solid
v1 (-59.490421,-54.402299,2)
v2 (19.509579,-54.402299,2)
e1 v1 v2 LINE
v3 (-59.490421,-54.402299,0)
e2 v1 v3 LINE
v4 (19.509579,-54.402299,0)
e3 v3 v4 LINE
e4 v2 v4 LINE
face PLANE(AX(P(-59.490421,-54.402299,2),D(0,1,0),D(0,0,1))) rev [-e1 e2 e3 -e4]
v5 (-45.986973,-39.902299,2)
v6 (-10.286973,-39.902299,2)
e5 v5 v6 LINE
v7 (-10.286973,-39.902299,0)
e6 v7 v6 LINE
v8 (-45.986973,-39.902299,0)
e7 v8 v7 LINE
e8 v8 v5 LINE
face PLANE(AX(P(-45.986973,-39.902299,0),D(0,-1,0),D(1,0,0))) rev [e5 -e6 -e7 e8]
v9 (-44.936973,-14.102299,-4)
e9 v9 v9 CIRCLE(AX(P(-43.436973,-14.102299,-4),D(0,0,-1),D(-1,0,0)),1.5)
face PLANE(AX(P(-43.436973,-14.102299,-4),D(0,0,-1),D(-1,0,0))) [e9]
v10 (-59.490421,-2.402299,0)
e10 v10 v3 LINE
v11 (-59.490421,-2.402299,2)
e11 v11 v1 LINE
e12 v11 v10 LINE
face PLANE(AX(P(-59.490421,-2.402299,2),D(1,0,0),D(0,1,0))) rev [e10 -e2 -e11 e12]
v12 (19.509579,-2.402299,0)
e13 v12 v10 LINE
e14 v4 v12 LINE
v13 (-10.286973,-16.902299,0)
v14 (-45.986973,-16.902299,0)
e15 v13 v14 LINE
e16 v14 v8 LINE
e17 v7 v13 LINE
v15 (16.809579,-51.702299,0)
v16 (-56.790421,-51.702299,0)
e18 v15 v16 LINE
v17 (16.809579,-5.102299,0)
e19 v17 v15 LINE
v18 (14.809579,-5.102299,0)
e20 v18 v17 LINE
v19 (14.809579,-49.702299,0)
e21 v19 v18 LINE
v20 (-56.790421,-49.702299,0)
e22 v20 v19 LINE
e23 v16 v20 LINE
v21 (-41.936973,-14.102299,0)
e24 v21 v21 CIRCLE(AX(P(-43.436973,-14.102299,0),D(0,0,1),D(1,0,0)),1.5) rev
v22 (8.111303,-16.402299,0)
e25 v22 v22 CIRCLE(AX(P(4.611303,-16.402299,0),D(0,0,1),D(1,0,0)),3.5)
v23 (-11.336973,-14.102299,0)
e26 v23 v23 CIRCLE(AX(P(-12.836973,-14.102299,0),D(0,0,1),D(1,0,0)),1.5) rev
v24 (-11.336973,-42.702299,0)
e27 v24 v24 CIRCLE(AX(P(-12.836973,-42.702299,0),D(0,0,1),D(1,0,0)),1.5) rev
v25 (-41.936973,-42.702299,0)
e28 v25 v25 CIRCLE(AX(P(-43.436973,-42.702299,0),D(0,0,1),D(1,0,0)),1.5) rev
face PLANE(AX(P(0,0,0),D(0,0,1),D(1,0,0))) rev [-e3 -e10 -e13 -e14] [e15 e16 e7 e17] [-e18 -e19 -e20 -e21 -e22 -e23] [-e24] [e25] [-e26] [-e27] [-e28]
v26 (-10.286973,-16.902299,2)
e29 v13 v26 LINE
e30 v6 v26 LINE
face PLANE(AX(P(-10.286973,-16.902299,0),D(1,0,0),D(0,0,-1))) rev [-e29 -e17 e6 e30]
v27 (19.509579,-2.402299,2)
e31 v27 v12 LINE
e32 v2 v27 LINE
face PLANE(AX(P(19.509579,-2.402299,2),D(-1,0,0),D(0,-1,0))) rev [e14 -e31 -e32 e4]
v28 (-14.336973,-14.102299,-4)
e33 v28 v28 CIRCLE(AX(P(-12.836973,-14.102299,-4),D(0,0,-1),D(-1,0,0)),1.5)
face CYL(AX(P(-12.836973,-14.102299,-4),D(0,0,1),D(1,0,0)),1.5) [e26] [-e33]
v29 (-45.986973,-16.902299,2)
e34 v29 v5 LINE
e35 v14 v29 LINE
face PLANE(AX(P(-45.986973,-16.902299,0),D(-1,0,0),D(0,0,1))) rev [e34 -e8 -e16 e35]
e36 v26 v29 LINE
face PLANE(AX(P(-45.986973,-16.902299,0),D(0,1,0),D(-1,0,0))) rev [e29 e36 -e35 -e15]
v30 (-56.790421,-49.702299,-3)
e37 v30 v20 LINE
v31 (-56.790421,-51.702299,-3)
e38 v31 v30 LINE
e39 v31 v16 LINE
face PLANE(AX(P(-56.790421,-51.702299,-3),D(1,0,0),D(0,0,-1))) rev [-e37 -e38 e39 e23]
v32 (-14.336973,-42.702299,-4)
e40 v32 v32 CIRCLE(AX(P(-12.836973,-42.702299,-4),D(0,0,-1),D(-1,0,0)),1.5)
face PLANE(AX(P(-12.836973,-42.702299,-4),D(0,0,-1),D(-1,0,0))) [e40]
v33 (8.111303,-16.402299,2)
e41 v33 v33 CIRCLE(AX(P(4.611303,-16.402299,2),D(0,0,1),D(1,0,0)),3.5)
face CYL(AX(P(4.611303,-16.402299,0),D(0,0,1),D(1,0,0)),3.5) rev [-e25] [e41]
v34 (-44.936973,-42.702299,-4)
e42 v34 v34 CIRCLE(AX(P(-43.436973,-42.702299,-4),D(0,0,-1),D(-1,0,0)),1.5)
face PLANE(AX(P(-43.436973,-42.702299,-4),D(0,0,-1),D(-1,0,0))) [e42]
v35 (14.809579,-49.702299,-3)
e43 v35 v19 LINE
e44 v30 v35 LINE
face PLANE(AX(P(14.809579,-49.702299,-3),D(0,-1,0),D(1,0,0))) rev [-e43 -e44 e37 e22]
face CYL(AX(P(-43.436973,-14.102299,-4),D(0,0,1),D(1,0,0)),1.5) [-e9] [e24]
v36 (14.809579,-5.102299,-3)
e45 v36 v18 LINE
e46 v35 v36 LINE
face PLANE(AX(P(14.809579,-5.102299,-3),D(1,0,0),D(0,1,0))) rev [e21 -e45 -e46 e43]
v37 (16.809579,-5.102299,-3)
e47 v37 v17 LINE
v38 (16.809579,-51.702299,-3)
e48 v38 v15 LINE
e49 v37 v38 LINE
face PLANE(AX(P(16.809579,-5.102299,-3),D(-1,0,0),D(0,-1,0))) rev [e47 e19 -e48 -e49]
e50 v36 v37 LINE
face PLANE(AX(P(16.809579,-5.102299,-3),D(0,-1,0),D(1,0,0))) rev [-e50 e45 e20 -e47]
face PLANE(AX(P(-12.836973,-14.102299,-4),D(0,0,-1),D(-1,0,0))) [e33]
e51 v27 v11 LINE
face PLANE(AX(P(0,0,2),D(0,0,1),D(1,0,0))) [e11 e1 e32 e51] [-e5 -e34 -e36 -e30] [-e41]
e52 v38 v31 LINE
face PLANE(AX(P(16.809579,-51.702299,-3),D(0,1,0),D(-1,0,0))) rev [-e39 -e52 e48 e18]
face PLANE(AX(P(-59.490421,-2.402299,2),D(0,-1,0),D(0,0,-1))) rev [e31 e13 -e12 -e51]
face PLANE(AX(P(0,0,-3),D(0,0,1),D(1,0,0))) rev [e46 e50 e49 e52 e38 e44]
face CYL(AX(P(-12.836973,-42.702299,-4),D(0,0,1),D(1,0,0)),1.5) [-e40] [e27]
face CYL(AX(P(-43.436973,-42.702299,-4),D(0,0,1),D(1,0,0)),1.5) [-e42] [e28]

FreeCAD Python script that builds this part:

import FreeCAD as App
import Part
import Sketcher
from FreeCAD import Vector
Q = App.Units.Quantity


def add_polygon(sketch, points):
    """Adds a closed chain of lines whose ends are joined by coincident constraints."""
    first, n = sketch.GeometryCount, len(points)
    for a, b in zip(points, points[1:] + points[:1]):
        sketch.addGeometry(Part.LineSegment(App.Vector(*a, 0), App.Vector(*b, 0)), False)
    for i in range(n):
        sketch.addConstraint(Sketcher.Constraint("Coincident", first + i, 2, first + (i + 1) % n, 1))

doc = App.newDocument("Part")
body = doc.addObject("PartDesign::Body", "Body")

# Sketch on XY plane
sketch1 = body.newObject("Sketcher::SketchObject", "Sketch")
sketch1.AttachmentSupport = (doc.getObject("XY_Plane"), [""])
sketch1.MapMode = "FlatFace"
add_polygon(sketch1, [(-59, -2), (-59, -54), (20, -54), (20, -2)])  # lines 0-3
sketch1.addConstraint(Sketcher.Constraint("Vertical", 0))
sketch1.addConstraint(Sketcher.Constraint("Horizontal", 1))
sketch1.addConstraint(Sketcher.Constraint("Vertical", 2))
sketch1.addConstraint(Sketcher.Constraint("Horizontal", 3))
sketch1.addConstraint(Sketcher.Constraint("DistanceX", 1, 1, 1, 2, Q("79 mm")))
sketch1.addConstraint(Sketcher.Constraint("DistanceY", 0, 2, 0, 1, Q("52 mm")))
sketch1.addConstraint(Sketcher.Constraint("DistanceY", 0, 2, -1, 1, Q("54.402299 mm")))
sketch1.addConstraint(Sketcher.Constraint("DistanceX", 0, 2, -1, 1, Q("59.490421 mm")))
pad1 = body.newObject("PartDesign::Pad", "Pad")
pad1.Profile = sketch1
pad1.Length = 2

# Sketch on XY plane
sketch2 = body.newObject("Sketcher::SketchObject", "Sketch001")
sketch2.AttachmentSupport = (doc.getObject("XY_Plane"), [""])
sketch2.MapMode = "FlatFace"
sketch2.AttachmentOffset = App.Placement(Vector(0, 0, 2), App.Rotation())
add_polygon(sketch2, [(-46, -17), (-46, -40), (-10, -40), (-10, -17)])  # lines 0-3
sketch2.addConstraint(Sketcher.Constraint("Vertical", 0))
sketch2.addConstraint(Sketcher.Constraint("Horizontal", 1))
sketch2.addConstraint(Sketcher.Constraint("Vertical", 2))
sketch2.addConstraint(Sketcher.Constraint("Horizontal", 3))
sketch2.addConstraint(Sketcher.Constraint("DistanceY", 0, 2, 0, 1, Q("23 mm")))
sketch2.addConstraint(Sketcher.Constraint("DistanceX", 1, 1, 1, 2, Q("35.7 mm")))
sketch2.addConstraint(Sketcher.Constraint("DistanceY", 0, 2, -1, 1, Q("39.902299 mm")))
sketch2.addConstraint(Sketcher.Constraint("DistanceX", 0, 2, -1, 1, Q("45.986973 mm")))
pocket1 = body.newObject("PartDesign::Pocket", "Pocket")
pocket1.Profile = sketch2
pocket1.Length = 2

# Sketch on XY plane
sketch3 = body.newObject("Sketcher::SketchObject", "Sketch002")
sketch3.AttachmentSupport = (doc.getObject("XY_Plane"), [""])
sketch3.MapMode = "FlatFace"
sketch3.AttachmentOffset = App.Placement(Vector(0, 0, 2), App.Rotation())
sketch3.addGeometry(Part.Circle(Vector(4.6, -16.4, 0), Vector(0, 0, 1), 3.5), False)
sketch3.addConstraint(Sketcher.Constraint("Diameter", 0, Q("7 mm")))
sketch3.addConstraint(Sketcher.Constraint("DistanceY", 0, 3, -1, 1, Q("16.402299 mm")))
sketch3.addConstraint(Sketcher.Constraint("DistanceX", -1, 1, 0, 3, Q("4.611303 mm")))
pocket2 = body.newObject("PartDesign::Pocket", "Pocket001")
pocket2.Profile = sketch3
pocket2.Length = 2

# Sketch on XY plane
sketch4 = body.newObject("Sketcher::SketchObject", "Sketch003")
sketch4.AttachmentSupport = (doc.getObject("XY_Plane"), [""])
sketch4.MapMode = "FlatFace"
sketch4.addGeometry(Part.Circle(Vector(-43.4, -14.1, 0), Vector(0, 0, 1), 1.5), False)
sketch4.addGeometry(Part.Circle(Vector(-43.4, -42.7, 0), Vector(0, 0, 1), 1.5), False)
sketch4.addGeometry(Part.Circle(Vector(-12.8, -14.1, 0), Vector(0, 0, 1), 1.5), False)
sketch4.addGeometry(Part.Circle(Vector(-12.8, -42.7, 0), Vector(0, 0, 1), 1.5), False)
sketch4.addConstraint(Sketcher.Constraint("Equal", 0, 1))
sketch4.addConstraint(Sketcher.Constraint("Equal", 1, 2))
sketch4.addConstraint(Sketcher.Constraint("Equal", 2, 3))
sketch4.addConstraint(Sketcher.Constraint("Horizontal", 0, 3, 2, 3))
sketch4.addConstraint(Sketcher.Constraint("Horizontal", 1, 3, 3, 3))
sketch4.addConstraint(Sketcher.Constraint("Vertical", 0, 3, 1, 3))
sketch4.addConstraint(Sketcher.Constraint("Vertical", 2, 3, 3, 3))
sketch4.addConstraint(Sketcher.Constraint("Diameter", 0, Q("3 mm")))
sketch4.addConstraint(Sketcher.Constraint("DistanceY", 1, 3, 0, 3, Q("28.6 mm")))
sketch4.addConstraint(Sketcher.Constraint("DistanceX", 0, 3, 2, 3, Q("30.6 mm")))
sketch4.addConstraint(Sketcher.Constraint("DistanceY", 0, 3, -1, 1, Q("14.102299 mm")))
sketch4.addConstraint(Sketcher.Constraint("DistanceX", 0, 3, -1, 1, Q("43.436973 mm")))
pad2 = body.newObject("PartDesign::Pad", "Pad001")
pad2.Profile = sketch4
pad2.Length = 4
pad2.Reversed = True

# Sketch on XY plane
sketch5 = body.newObject("Sketcher::SketchObject", "Sketch004")
sketch5.AttachmentSupport = (doc.getObject("XY_Plane"), [""])
sketch5.MapMode = "FlatFace"
add_polygon(sketch5, [(16.8, -5.1), (16.8, -51.7), (-56.8, -51.7), (-56.8, -49.7), (14.8, -49.7), (14.8, -5.1)])  # lines 0-5
sketch5.addConstraint(Sketcher.Constraint("Vertical", 0))
sketch5.addConstraint(Sketcher.Constraint("Horizontal", 1))
sketch5.addConstraint(Sketcher.Constraint("Vertical", 2))
sketch5.addConstraint(Sketcher.Constraint("Horizontal", 3))
sketch5.addConstraint(Sketcher.Constraint("Vertical", 4))
sketch5.addConstraint(Sketcher.Constraint("Horizontal", 5))
sketch5.addConstraint(Sketcher.Constraint("Equal", 5, 2))
sketch5.addConstraint(Sketcher.Constraint("DistanceX", 5, 1, 5, 2, Q("2 mm")))
sketch5.addConstraint(Sketcher.Constraint("DistanceX", 1, 2, 1, 1, Q("73.6 mm")))
sketch5.addConstraint(Sketcher.Constraint("DistanceY", 0, 2, 0, 1, Q("46.6 mm")))
sketch5.addConstraint(Sketcher.Constraint("DistanceY", 0, 2, -1, 1, Q("51.702299 mm")))
sketch5.addConstraint(Sketcher.Constraint("DistanceX", -1, 1, 0, 2, Q("16.809579 mm")))
pad3 = body.newObject("PartDesign::Pad", "Pad002")
pad3.Profile = sketch5
pad3.Length = 3
pad3.Reversed = True

doc.recompute()
